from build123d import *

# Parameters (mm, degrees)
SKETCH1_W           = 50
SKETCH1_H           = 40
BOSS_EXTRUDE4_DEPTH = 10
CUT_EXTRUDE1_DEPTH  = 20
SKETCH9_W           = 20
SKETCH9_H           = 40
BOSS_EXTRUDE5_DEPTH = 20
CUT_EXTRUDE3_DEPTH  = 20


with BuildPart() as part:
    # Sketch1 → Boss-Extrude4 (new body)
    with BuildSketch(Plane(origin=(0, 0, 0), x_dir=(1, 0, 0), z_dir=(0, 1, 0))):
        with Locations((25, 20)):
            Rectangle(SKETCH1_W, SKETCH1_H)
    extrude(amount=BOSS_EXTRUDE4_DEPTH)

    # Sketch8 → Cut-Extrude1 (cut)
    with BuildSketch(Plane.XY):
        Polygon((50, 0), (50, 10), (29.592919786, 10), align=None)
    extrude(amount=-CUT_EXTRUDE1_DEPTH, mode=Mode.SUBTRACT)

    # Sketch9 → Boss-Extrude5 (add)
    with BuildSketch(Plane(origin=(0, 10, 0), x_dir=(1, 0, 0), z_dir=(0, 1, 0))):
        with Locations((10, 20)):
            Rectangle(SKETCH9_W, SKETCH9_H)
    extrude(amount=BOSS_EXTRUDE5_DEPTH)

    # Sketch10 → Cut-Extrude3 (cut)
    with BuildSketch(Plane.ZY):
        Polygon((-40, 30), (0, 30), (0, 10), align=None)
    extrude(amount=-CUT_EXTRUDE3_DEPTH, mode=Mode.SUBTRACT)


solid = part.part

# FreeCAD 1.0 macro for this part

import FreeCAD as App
import Part
import Sketcher
Q = App.Units.Quantity


def add_polygon(sketch, points):
    """Adds a closed chain of lines whose ends are joined by coincident constraints."""
    first, n = sketch.GeometryCount, len(points)
    for a, b in zip(points, points[1:] + points[:1]):
        sketch.addGeometry(Part.LineSegment(App.Vector(*a, 0), App.Vector(*b, 0)), False)
    for i in range(n):
        sketch.addConstraint(Sketcher.Constraint("Coincident", first + i, 2, first + (i + 1) % n, 1))

doc = App.newDocument("Part")
body = doc.addObject("PartDesign::Body", "Body")

# Sketch on XZ plane
sketch1 = body.newObject("Sketcher::SketchObject", "Sketch")
sketch1.AttachmentSupport = (doc.getObject("XZ_Plane"), [""])
sketch1.MapMode = "FlatFace"
add_polygon(sketch1, [(0, -40), (0, 0), (50, 0), (50, -40)])  # lines 0-3
sketch1.addConstraint([
    Sketcher.Constraint("Vertical", 0),
    Sketcher.Constraint("Horizontal", 1),
    Sketcher.Constraint("Vertical", 2),
    Sketcher.Constraint("Horizontal", 3),
    Sketcher.Constraint("Coincident", 0, 2, -1, 1),
    Sketcher.Constraint("DistanceX", 1, 1, 1, 2, Q("50 mm")),
    Sketcher.Constraint("DistanceY", 0, 1, 0, 2, Q("40 mm")),
])
pad1 = body.newObject("PartDesign::Pad", "Pad")
pad1.Profile = sketch1
pad1.Length = 10
pad1.Reversed = True

# Sketch on XY plane
sketch2 = body.newObject("Sketcher::SketchObject", "Sketch001")
sketch2.AttachmentSupport = (doc.getObject("XY_Plane"), [""])
sketch2.MapMode = "FlatFace"
add_polygon(sketch2, [(50, 0), (50, 10), (30, 10)])  # lines 0-2
sketch2.addConstraint([
    Sketcher.Constraint("Vertical", 0),
    Sketcher.Constraint("Horizontal", 1),
    Sketcher.Constraint("PointOnObject", 2, 2, -1),
    Sketcher.Constraint("DistanceY", 0, 1, 0, 2, Q("10 mm")),
    Sketcher.Constraint("DistanceX", -1, 1, 0, 2, Q("50 mm")),
    Sketcher.Constraint("DistanceX", 1, 2, 1, 1, Q("20.40708 mm")),
])
pocket1 = body.newObject("PartDesign::Pocket", "Pocket")
pocket1.Profile = sketch2
pocket1.Length = 20

# Sketch on XZ plane
sketch3 = body.newObject("Sketcher::SketchObject", "Sketch002")
sketch3.AttachmentSupport = (doc.getObject("XZ_Plane"), [""])
sketch3.MapMode = "FlatFace"
sketch3.AttachmentOffset = App.Placement(App.Vector(0, 0, -10), App.Rotation())
add_polygon(sketch3, [(0, -40), (0, 0), (20, 0), (20, -40)])  # lines 0-3
sketch3.addConstraint([
    Sketcher.Constraint("Vertical", 0),
    Sketcher.Constraint("Horizontal", 1),
    Sketcher.Constraint("Vertical", 2),
    Sketcher.Constraint("Horizontal", 3),
    Sketcher.Constraint("Coincident", 0, 2, -1, 1),
    Sketcher.Constraint("DistanceX", 1, 1, 1, 2, Q("20 mm")),
    Sketcher.Constraint("DistanceY", 0, 1, 0, 2, Q("40 mm")),
])
pad2 = body.newObject("PartDesign::Pad", "Pad001")
pad2.Profile = sketch3
pad2.Length = 20
pad2.Reversed = True

# Sketch on YZ plane
sketch4 = body.newObject("Sketcher::SketchObject", "Sketch003")
sketch4.AttachmentSupport = (doc.getObject("YZ_Plane"), [""])
sketch4.MapMode = "FlatFace"
add_polygon(sketch4, [(30, 0), (30, -40), (10, 0)])  # lines 0-2
sketch4.addConstraint([
    Sketcher.Constraint("Vertical", 0),
    Sketcher.Constraint("Horizontal", 2),
    Sketcher.Constraint("PointOnObject", 1, 2, -1),
    Sketcher.Constraint("DistanceX", 2, 1, 2, 2, Q("20 mm")),
    Sketcher.Constraint("DistanceY", 0, 2, 0, 1, Q("40 mm")),
    Sketcher.Constraint("DistanceX", -1, 1, 0, 2, Q("30 mm")),
])
pocket2 = body.newObject("PartDesign::Pocket", "Pocket001")
pocket2.Profile = sketch4
pocket2.Length = 20
pocket2.Reversed = True

doc.recompute()
